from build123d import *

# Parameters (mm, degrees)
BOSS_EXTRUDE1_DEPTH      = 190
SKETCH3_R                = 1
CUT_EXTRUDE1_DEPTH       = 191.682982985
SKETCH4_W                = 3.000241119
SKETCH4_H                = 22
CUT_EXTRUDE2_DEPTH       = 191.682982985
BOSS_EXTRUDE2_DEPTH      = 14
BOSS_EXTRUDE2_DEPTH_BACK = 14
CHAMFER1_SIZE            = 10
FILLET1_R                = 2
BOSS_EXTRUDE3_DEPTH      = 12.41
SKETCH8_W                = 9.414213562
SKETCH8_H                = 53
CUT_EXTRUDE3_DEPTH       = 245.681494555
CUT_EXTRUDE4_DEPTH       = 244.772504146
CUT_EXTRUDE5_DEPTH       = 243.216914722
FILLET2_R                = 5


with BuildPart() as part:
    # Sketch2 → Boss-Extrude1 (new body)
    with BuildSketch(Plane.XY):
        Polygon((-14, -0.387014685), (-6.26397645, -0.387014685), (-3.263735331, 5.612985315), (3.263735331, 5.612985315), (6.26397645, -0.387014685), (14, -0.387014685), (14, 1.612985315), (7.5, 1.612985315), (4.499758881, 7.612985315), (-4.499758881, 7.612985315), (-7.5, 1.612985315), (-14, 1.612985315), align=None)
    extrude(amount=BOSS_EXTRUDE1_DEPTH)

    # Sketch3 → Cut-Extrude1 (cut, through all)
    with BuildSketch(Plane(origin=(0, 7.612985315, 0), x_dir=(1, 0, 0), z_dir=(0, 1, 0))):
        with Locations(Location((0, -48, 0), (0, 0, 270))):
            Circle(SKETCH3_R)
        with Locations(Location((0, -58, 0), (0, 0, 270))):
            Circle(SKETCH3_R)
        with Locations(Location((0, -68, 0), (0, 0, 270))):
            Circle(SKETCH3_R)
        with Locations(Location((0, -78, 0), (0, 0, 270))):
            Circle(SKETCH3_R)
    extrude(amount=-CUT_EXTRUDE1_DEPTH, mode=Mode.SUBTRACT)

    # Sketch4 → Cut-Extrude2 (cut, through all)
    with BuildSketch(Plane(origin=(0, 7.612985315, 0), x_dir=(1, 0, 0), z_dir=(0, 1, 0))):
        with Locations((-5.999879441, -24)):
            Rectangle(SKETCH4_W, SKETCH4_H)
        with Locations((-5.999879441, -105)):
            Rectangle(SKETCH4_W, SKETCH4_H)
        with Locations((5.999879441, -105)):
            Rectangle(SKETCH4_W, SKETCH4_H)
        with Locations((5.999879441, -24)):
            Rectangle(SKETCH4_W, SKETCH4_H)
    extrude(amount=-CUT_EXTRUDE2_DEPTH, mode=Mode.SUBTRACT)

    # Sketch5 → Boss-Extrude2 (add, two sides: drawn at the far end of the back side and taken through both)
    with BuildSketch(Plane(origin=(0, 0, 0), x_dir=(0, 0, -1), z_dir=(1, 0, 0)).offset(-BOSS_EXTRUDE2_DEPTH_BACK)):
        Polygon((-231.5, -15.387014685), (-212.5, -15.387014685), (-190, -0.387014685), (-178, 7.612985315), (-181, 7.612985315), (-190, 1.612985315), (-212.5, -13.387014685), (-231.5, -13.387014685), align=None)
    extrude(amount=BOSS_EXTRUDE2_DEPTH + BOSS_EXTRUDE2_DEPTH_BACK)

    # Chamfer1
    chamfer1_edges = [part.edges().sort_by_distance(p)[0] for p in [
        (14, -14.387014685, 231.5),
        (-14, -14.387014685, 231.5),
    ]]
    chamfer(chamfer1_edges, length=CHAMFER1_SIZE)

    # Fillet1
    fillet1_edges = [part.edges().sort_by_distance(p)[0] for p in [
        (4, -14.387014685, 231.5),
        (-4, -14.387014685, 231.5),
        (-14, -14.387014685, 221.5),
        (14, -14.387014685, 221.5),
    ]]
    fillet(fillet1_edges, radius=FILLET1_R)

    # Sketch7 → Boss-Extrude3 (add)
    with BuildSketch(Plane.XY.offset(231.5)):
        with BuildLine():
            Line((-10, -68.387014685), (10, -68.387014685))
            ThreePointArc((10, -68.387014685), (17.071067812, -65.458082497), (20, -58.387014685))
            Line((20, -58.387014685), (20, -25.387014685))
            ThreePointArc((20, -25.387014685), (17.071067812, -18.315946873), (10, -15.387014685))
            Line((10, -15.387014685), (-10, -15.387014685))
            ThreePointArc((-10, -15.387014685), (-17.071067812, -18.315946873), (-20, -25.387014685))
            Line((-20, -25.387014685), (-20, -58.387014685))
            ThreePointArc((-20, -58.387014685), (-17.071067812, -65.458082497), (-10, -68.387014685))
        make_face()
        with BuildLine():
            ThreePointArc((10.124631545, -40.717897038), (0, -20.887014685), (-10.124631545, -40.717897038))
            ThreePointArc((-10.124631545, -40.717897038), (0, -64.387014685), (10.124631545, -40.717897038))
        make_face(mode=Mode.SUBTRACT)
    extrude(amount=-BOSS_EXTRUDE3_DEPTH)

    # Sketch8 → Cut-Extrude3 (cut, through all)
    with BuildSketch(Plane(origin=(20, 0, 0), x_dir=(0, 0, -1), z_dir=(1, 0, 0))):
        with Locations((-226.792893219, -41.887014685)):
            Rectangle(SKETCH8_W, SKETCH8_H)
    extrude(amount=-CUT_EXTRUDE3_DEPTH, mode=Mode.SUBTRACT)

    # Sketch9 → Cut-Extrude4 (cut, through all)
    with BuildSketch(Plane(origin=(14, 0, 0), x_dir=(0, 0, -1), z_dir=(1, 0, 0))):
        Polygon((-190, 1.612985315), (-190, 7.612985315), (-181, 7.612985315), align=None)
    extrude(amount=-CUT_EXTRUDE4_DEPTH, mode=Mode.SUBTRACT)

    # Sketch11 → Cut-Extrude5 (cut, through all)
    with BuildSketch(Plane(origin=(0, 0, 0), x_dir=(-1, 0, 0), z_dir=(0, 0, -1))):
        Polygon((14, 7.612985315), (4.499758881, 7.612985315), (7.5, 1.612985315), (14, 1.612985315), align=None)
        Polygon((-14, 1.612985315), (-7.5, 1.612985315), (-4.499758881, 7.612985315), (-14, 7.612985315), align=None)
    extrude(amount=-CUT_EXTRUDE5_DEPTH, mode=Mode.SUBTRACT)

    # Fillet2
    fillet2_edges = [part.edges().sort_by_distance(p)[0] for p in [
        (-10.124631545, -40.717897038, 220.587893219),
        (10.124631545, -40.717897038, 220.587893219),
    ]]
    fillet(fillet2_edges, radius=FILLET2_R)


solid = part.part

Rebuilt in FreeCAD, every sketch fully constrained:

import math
import FreeCAD as App
import Part
import Sketcher
Q = App.Units.Quantity


def edges_at(feature, points):
    """Names of the edges that pass closest to the given points."""
    edges = feature.Shape.Edges
    near = lambda p: min(range(len(edges)), key=lambda i: edges[i].distToShape(Part.Vertex(*p))[0])
    return sorted({f"Edge{near(p) + 1}" for p in points})


def add_polygon(sketch, points):
    """Adds a closed chain of lines whose ends are joined by coincident constraints."""
    first, n = sketch.GeometryCount, len(points)
    for a, b in zip(points, points[1:] + points[:1]):
        sketch.addGeometry(Part.LineSegment(App.Vector(*a, 0), App.Vector(*b, 0)), False)
    for i in range(n):
        sketch.addConstraint(Sketcher.Constraint("Coincident", first + i, 2, first + (i + 1) % n, 1))

doc = App.newDocument("Part")
params = doc.addObject("Spreadsheet::Sheet", "Params")
for row, (alias, value) in enumerate([
    ("sketch1_height", "2 mm"),
    ("sketch1_width", "6.5 mm"),
    ("pad1_length", "190 mm"),
    ("sketch2_diameter", "2 mm"),
    ("sketch3_height", "22 mm"),
    ("sketch4_width", "2 mm"),
    ("sketch4_height", "19 mm"),
    ("sketch4_height2", "3 mm"),
    ("pad2_length", "14 mm"),
    ("pad2_length2", "14 mm"),
    ("chamfer_size", "10 mm"),
    ("fillet_radius", "2 mm"),
    ("sketch5_radius", "10 mm"),
    ("sketch5_radius2", "14 mm"),
    ("sketch5_radius3", "12.5 mm"),
    ("sketch5_width", "20 mm"),
    ("sketch5_height", "33 mm"),
    ("pad3_length", "12.41 mm"),
    ("sketch6_width", "53 mm"),
    ("sketch7_width", "6 mm"),
    ("sketch7_height", "9 mm"),
    ("sketch8_height", "6 mm"),
    ("sketch8_width", "6.5 mm"),
    ("fillet2_radius", "5 mm"),
], start=1):
    params.set(f"A{row}", alias)
    params.set(f"B{row}", "=" + value)
    params.setAlias(f"B{row}", alias)

body = doc.addObject("PartDesign::Body", "Body")

# Sketch on XY plane
sketch1 = body.newObject("Sketcher::SketchObject", "Sketch")
sketch1.AttachmentSupport = (doc.getObject("XY_Plane"), [""])
sketch1.MapMode = "FlatFace"
add_polygon(sketch1, [(-14, -0.4), (-6.3, -0.4), (-3.3, 5.6), (3.3, 5.6), (6.3, -0.4), (14, -0.4), (14, 1.6), (7.5, 1.6), (4.5, 7.6), (-4.5, 7.6), (-7.5, 1.6), (-14, 1.6)])  # lines 0-11
sketch1.addConstraint([
    Sketcher.Constraint("Horizontal", 0),
    Sketcher.Constraint("Horizontal", 2),
    Sketcher.Constraint("Horizontal", 4),
    Sketcher.Constraint("Vertical", 5),
    Sketcher.Constraint("Horizontal", 6),
    Sketcher.Constraint("Horizontal", 8),
    Sketcher.Constraint("Horizontal", 10),
    Sketcher.Constraint("Vertical", 11),
    Sketcher.Constraint("Symmetric", 0, 2, 3, 2, -2),
    Sketcher.Constraint("Symmetric", 6, 2, 9, 2, -2),
    Sketcher.Constraint("Parallel", 3, 7),
    Sketcher.Constraint("Parallel", 1, 9),
    Sketcher.Constraint("Equal", 0, 4),
    Sketcher.Constraint("Equal", 1, 3),
    Sketcher.Constraint("Equal", 3, 7),
    Sketcher.Constraint("DistanceY", 5, 1, 5, 2, Q("2 mm")),
    Sketcher.Constraint("DistanceX", 6, 2, 6, 1, Q("6.5 mm")),
    Sketcher.Constraint("DistanceX", -1, 1, 4, 2, Q("14 mm")),
    Sketcher.Constraint("DistanceY", 0, 2, 1, 2, Q("6 mm")),
    Sketcher.Constraint("DistanceX", 2, 1, 2, 2, Q("6.527471 mm")),
    Sketcher.Constraint("Distance", 1, Q("6.708312 mm")),
    Sketcher.Constraint("DistanceY", 0, 2, -1, 1, Q("0.387015 mm")),
])
sketch1.setExpression("Constraints[27]", "Params.sketch1_height")
sketch1.setExpression("Constraints[28]", "Params.sketch1_width")
pad1 = body.newObject("PartDesign::Pad", "Pad")
pad1.Profile = sketch1
pad1.setExpression("Length", "Params.pad1_length")

# Sketch on XZ plane
sketch2 = body.newObject("Sketcher::SketchObject", "Sketch001")
sketch2.AttachmentSupport = (doc.getObject("XZ_Plane"), [""])
sketch2.MapMode = "FlatFace"
sketch2.AttachmentOffset = App.Placement(App.Vector(0, 0, -7.612985), App.Rotation())
sketch2.addGeometry([
    Part.Circle(App.Vector(0, 48, 0), App.Vector(0, 0, 1), 1),
    Part.Circle(App.Vector(0, 58, 0), App.Vector(0, 0, 1), 1),
    Part.Circle(App.Vector(0, 68, 0), App.Vector(0, 0, 1), 1),
    Part.Circle(App.Vector(0, 78, 0), App.Vector(0, 0, 1), 1),
], False)
sketch2.addConstraint([
    Sketcher.Constraint("Equal", 0, 1),
    Sketcher.Constraint("Equal", 1, 2),
    Sketcher.Constraint("Equal", 2, 3),
    Sketcher.Constraint("PointOnObject", 0, 3, -2),
    Sketcher.Constraint("PointOnObject", 1, 3, -2),
    Sketcher.Constraint("PointOnObject", 2, 3, -2),
    Sketcher.Constraint("PointOnObject", 3, 3, -2),
    Sketcher.Constraint("Diameter", 0, Q("2 mm")),
    Sketcher.Constraint("DistanceY", -1, 1, 0, 3, Q("48 mm")),
    Sketcher.Constraint("DistanceY", -1, 1, 1, 3, Q("58 mm")),
    Sketcher.Constraint("DistanceY", -1, 1, 2, 3, Q("68 mm")),
    Sketcher.Constraint("DistanceY", -1, 1, 3, 3, Q("78 mm")),
])
sketch2.setExpression("Constraints[7]", "Params.sketch2_diameter")
pocket1 = body.newObject("PartDesign::Pocket", "Pocket")
pocket1.Profile = sketch2
pocket1.Type = "ThroughAll"
pocket1.Reversed = True

# Sketch on XZ plane
sketch3 = body.newObject("Sketcher::SketchObject", "Sketch002")
sketch3.AttachmentSupport = (doc.getObject("XZ_Plane"), [""])
sketch3.MapMode = "FlatFace"
sketch3.AttachmentOffset = App.Placement(App.Vector(0, 0, -7.612985), App.Rotation())
add_polygon(sketch3, [(-7.5, 13), (-7.5, 35), (-4.5, 35), (-4.5, 13)])  # lines 0-3
add_polygon(sketch3, [(-7.5, 94), (-7.5, 116), (-4.5, 116), (-4.5, 94)])  # lines 4-7
add_polygon(sketch3, [(4.5, 94), (4.5, 116), (7.5, 116), (7.5, 94)])  # lines 8-11
add_polygon(sketch3, [(4.5, 13), (4.5, 35), (7.5, 35), (7.5, 13)])  # lines 12-15
sketch3.addConstraint([
    Sketcher.Constraint("Vertical", 0),
    Sketcher.Constraint("Horizontal", 1),
    Sketcher.Constraint("Vertical", 2),
    Sketcher.Constraint("Horizontal", 3),
    Sketcher.Constraint("Vertical", 4),
    Sketcher.Constraint("Horizontal", 5),
    Sketcher.Constraint("Vertical", 6),
    Sketcher.Constraint("Horizontal", 7),
    Sketcher.Constraint("Vertical", 8),
    Sketcher.Constraint("Horizontal", 9),
    Sketcher.Constraint("Vertical", 10),
    Sketcher.Constraint("Horizontal", 11),
    Sketcher.Constraint("Vertical", 12),
    Sketcher.Constraint("Horizontal", 13),
    Sketcher.Constraint("Vertical", 14),
    Sketcher.Constraint("Horizontal", 15),
    Sketcher.Constraint("Symmetric", 5, 2, 8, 2, -2),
    Sketcher.Constraint("Symmetric", 7, 2, 10, 2, -2),
    Sketcher.Constraint("Symmetric", 1, 2, 12, 2, -2),
    Sketcher.Constraint("Symmetric", 3, 2, 14, 2, -2),
    Sketcher.Constraint("Vertical", 3, 2, 4, 2),
    Sketcher.Constraint("Vertical", 2, 2, 5, 2),
    Sketcher.Constraint("Equal", 2, 4),
    Sketcher.Constraint("DistanceY", 0, 1, 0, 2, Q("22 mm")),
    Sketcher.Constraint("DistanceY", -1, 1, 0, 2, Q("35 mm")),
    Sketcher.Constraint("DistanceY", -1, 1, 4, 2, Q("116 mm")),
    Sketcher.Constraint("DistanceX", 4, 2, 9, 2, Q("15 mm")),
    Sketcher.Constraint("DistanceX", 1, 1, 1, 2, Q("3.000241 mm")),
])
sketch3.setExpression("Constraints[39]", "Params.sketch3_height")
pocket2 = body.newObject("PartDesign::Pocket", "Pocket001")
pocket2.Profile = sketch3
pocket2.Type = "ThroughAll"
pocket2.Reversed = True

# Sketch on YZ plane
sketch4 = body.newObject("Sketcher::SketchObject", "Sketch003")
sketch4.AttachmentSupport = (doc.getObject("YZ_Plane"), [""])
sketch4.MapMode = "FlatFace"
add_polygon(sketch4, [(-15.4, 231.5), (-15.4, 212.5), (7.6, 178), (7.6, 181), (-13.4, 212.5), (-13.4, 231.5)])  # lines 0-5
sketch4.addConstraint([
    Sketcher.Constraint("Vertical", 0),
    Sketcher.Constraint("Vertical", 2),
    Sketcher.Constraint("Vertical", 4),
    Sketcher.Constraint("Horizontal", 5),
    Sketcher.Constraint("Parallel", 1, 3),
    Sketcher.Constraint("Horizontal", 0, 2, 3, 2),
    Sketcher.Constraint("DistanceX", 5, 2, 5, 1, Q("2 mm")),
    Sketcher.Constraint("DistanceY", 0, 2, 0, 1, Q("19 mm")),
    Sketcher.Constraint("DistanceY", 2, 1, 2, 2, Q("3 mm")),
    Sketcher.Constraint("DistanceY", -1, 1, 1, 2, Q("178 mm")),
    Sketcher.Constraint("DistanceX", 0, 2, 1, 2, Q("23 mm")),
    Sketcher.Constraint("DistanceX", 0, 2, -1, 1, Q("15.387015 mm")),
])
sketch4.setExpression("Constraints[12]", "Params.sketch4_width")
sketch4.setExpression("Constraints[13]", "Params.sketch4_height")
sketch4.setExpression("Constraints[14]", "Params.sketch4_height2")
pad2 = body.newObject("PartDesign::Pad", "Pad001")
pad2.Profile = sketch4
pad2.Type = "TwoLengths"
pad2.setExpression("Length", "Params.pad2_length")
pad2.setExpression("Length2", "Params.pad2_length2")
doc.recompute()

chamfer = body.newObject("PartDesign::Chamfer", "Chamfer")
chamfer.Base = (pad2, edges_at(pad2, [(14, -14.387, 231.5), (-14, -14.387, 231.5)]))
chamfer.setExpression("Size", "Params.chamfer_size")
doc.recompute()

fillet = body.newObject("PartDesign::Fillet", "Fillet")
fillet.Base = (chamfer, edges_at(chamfer, [
    (4, -14.387, 231.5),
    (-4, -14.387, 231.5),
    (-14, -14.387, 221.5),
    (14, -14.387, 221.5),
]))
fillet.setExpression("Radius", "Params.fillet_radius")

# Sketch on XY plane
sketch5 = body.newObject("Sketcher::SketchObject", "Sketch004")
sketch5.AttachmentSupport = (doc.getObject("XY_Plane"), [""])
sketch5.MapMode = "FlatFace"
sketch5.AttachmentOffset = App.Placement(App.Vector(0, 0, 231.5), App.Rotation())
sketch5.addGeometry([
    Part.LineSegment(App.Vector(-10, -68, 0), App.Vector(10, -68, 0)),  # 0
    Part.ArcOfCircle(Part.Circle(App.Vector(10, -58, 0), App.Vector(0, 0, 1), 10), math.radians(-90), math.radians(0)),  # 1
    Part.LineSegment(App.Vector(20, -58, 0), App.Vector(20, -25, 0)),  # 2
    Part.ArcOfCircle(Part.Circle(App.Vector(10, -25, 0), App.Vector(0, 0, 1), 10), math.radians(0), math.radians(90)),  # 3
    Part.LineSegment(App.Vector(10, -15, 0), App.Vector(-10, -15, 0)),  # 4
    Part.ArcOfCircle(Part.Circle(App.Vector(-10, -25, 0), App.Vector(0, 0, 1), 10), math.radians(90), math.radians(180)),  # 5
    Part.LineSegment(App.Vector(-20, -25, 0), App.Vector(-20, -58, 0)),  # 6
    Part.ArcOfCircle(Part.Circle(App.Vector(-10, -58, 0), App.Vector(0, 0, 1), 10), math.radians(180), math.radians(270)),  # 7
    Part.ArcOfCircle(Part.Circle(App.Vector(0, -33, 0), App.Vector(0, 0, 1), 12), math.radians(-36), math.radians(216)),  # 8
    Part.ArcOfCircle(Part.Circle(App.Vector(0, -50, 0), App.Vector(0, 0, 1), 14), math.radians(136), math.radians(404)),  # 9
], False)
sketch5.addConstraint([
    Sketcher.Constraint("Tangent", 0, 2, 1, 1),
    Sketcher.Constraint("Tangent", 1, 2, 2, 1),
    Sketcher.Constraint("Tangent", 2, 2, 3, 1),
    Sketcher.Constraint("Tangent", 3, 2, 4, 1),
    Sketcher.Constraint("Tangent", 4, 2, 5, 1),
    Sketcher.Constraint("Tangent", 5, 2, 6, 1),
    Sketcher.Constraint("Tangent", 6, 2, 7, 1),
    Sketcher.Constraint("Tangent", 7, 2, 0, 1),
    Sketcher.Constraint("Coincident", 8, 1, 9, 2),
    Sketcher.Constraint("Coincident", 9, 1, 8, 2),
    Sketcher.Constraint("Horizontal", 0),
    Sketcher.Constraint("Vertical", 2),
    Sketcher.Constraint("Horizontal", 4),
    Sketcher.Constraint("Vertical", 6),
    Sketcher.Constraint("Equal", 1, 3),
    Sketcher.Constraint("Equal", 3, 5),
    Sketcher.Constraint("Equal", 5, 7),
    Sketcher.Constraint("Symmetric", 8, 1, 9, 1, -2),
    Sketcher.Constraint("Radius", 1, Q("10 mm")),
    Sketcher.Constraint("Radius", 9, Q("14 mm")),
    Sketcher.Constraint("Radius", 8, Q("12.5 mm")),
    Sketcher.Constraint("DistanceX", 0, 1, 0, 2, Q("20 mm")),
    Sketcher.Constraint("DistanceY", 2, 1, 2, 2, Q("33 mm")),
    Sketcher.Constraint("DistanceX", -1, 1, 1, 3, Q("10 mm")),
    Sketcher.Constraint("DistanceY", 8, 3, 3, 3, Q("8 mm")),
    Sketcher.Constraint("DistanceY", 1, 3, 9, 3, Q("8 mm")),
    Sketcher.Constraint("DistanceY", 1, 3, -1, 1, Q("58.387015 mm")),
])
sketch5.setExpression("Constraints[18]", "Params.sketch5_radius")
sketch5.setExpression("Constraints[19]", "Params.sketch5_radius2")
sketch5.setExpression("Constraints[20]", "Params.sketch5_radius3")
sketch5.setExpression("Constraints[21]", "Params.sketch5_width")
sketch5.setExpression("Constraints[22]", "Params.sketch5_height")
pad3 = body.newObject("PartDesign::Pad", "Pad002")
pad3.Profile = sketch5
pad3.setExpression("Length", "Params.pad3_length")
pad3.Reversed = True

# Sketch on YZ plane
sketch6 = body.newObject("Sketcher::SketchObject", "Sketch005")
sketch6.AttachmentSupport = (doc.getObject("YZ_Plane"), [""])
sketch6.MapMode = "FlatFace"
sketch6.AttachmentOffset = App.Placement(App.Vector(0, 0, 20), App.Rotation())
add_polygon(sketch6, [(-15, 232), (-68, 232), (-68, 222), (-15, 222)])  # lines 0-3
sketch6.addConstraint([
    Sketcher.Constraint("Horizontal", 0),
    Sketcher.Constraint("Vertical", 1),
    Sketcher.Constraint("Horizontal", 2),
    Sketcher.Constraint("Vertical", 3),
    Sketcher.Constraint("DistanceX", 0, 2, 0, 1, Q("53 mm")),
    Sketcher.Constraint("DistanceY", -1, 1, 0, 2, Q("231.5 mm")),
    Sketcher.Constraint("DistanceY", 1, 2, 1, 1, Q("9.414214 mm")),
    Sketcher.Constraint("DistanceX", 0, 2, -1, 1, Q("68.387015 mm")),
])
sketch6.setExpression("Constraints[8]", "Params.sketch6_width")
pocket3 = body.newObject("PartDesign::Pocket", "Pocket002")
pocket3.Profile = sketch6
pocket3.Type = "ThroughAll"

# Sketch on YZ plane
sketch7 = body.newObject("Sketcher::SketchObject", "Sketch006")
sketch7.AttachmentSupport = (doc.getObject("YZ_Plane"), [""])
sketch7.MapMode = "FlatFace"
sketch7.AttachmentOffset = App.Placement(App.Vector(0, 0, 14), App.Rotation())
add_polygon(sketch7, [(8, 190), (2, 190), (8, 181)])  # lines 0-2
sketch7.addConstraint([
    Sketcher.Constraint("Horizontal", 0),
    Sketcher.Constraint("Vertical", 2),
    Sketcher.Constraint("DistanceX", 0, 2, 0, 1, Q("6 mm")),
    Sketcher.Constraint("DistanceY", 2, 1, 2, 2, Q("9 mm")),
    Sketcher.Constraint("DistanceY", -1, 1, 0, 2, Q("190 mm")),
    Sketcher.Constraint("DistanceX", -1, 1, 0, 2, Q("1.612985 mm")),
])
sketch7.setExpression("Constraints[5]", "Params.sketch7_width")
sketch7.setExpression("Constraints[6]", "Params.sketch7_height")
pocket4 = body.newObject("PartDesign::Pocket", "Pocket003")
pocket4.Profile = sketch7
pocket4.Type = "ThroughAll"

# Sketch on XY plane
sketch8 = body.newObject("Sketcher::SketchObject", "Sketch007")
sketch8.AttachmentSupport = (doc.getObject("XY_Plane"), [""])
sketch8.MapMode = "FlatFace"
add_polygon(sketch8, [(-14, 8), (-4, 8), (-8, 2), (-14, 2)])  # lines 0-3
add_polygon(sketch8, [(14, 2), (8, 2), (4, 8), (14, 8)])  # lines 4-7
sketch8.addConstraint([
    Sketcher.Constraint("Horizontal", 0),
    Sketcher.Constraint("Horizontal", 2),
    Sketcher.Constraint("Vertical", 3),
    Sketcher.Constraint("Horizontal", 4),
    Sketcher.Constraint("Horizontal", 6),
    Sketcher.Constraint("Vertical", 7),
    Sketcher.Constraint("Symmetric", 1, 2, 4, 2, -2),
    Sketcher.Constraint("Symmetric", 0, 2, 5, 2, -2),
    Sketcher.Constraint("Equal", 2, 4),
    Sketcher.Constraint("DistanceY", 3, 1, 3, 2, Q("6 mm")),
    Sketcher.Constraint("DistanceX", 2, 2, 2, 1, Q("6.5 mm")),
    Sketcher.Constraint("DistanceX", 2, 2, -1, 1, Q("14 mm")),
    Sketcher.Constraint("DistanceX", 0, 1, 0, 2, Q("9.500241 mm")),
    Sketcher.Constraint("DistanceY", -1, 1, 0, 2, Q("7.612985 mm")),
])
sketch8.setExpression("Constraints[17]", "Params.sketch8_height")
sketch8.setExpression("Constraints[18]", "Params.sketch8_width")
pocket5 = body.newObject("PartDesign::Pocket", "Pocket004")
pocket5.Profile = sketch8
pocket5.Type = "ThroughAll"
pocket5.Reversed = True
doc.recompute()

fillet2 = body.newObject("PartDesign::Fillet", "Fillet001")
fillet2.Base = (pocket5, edges_at(pocket5, [(-10.125, -40.718, 220.588), (10.125, -40.718, 220.588)]))
fillet2.setExpression("Radius", "Params.fillet2_radius")

doc.recompute()
